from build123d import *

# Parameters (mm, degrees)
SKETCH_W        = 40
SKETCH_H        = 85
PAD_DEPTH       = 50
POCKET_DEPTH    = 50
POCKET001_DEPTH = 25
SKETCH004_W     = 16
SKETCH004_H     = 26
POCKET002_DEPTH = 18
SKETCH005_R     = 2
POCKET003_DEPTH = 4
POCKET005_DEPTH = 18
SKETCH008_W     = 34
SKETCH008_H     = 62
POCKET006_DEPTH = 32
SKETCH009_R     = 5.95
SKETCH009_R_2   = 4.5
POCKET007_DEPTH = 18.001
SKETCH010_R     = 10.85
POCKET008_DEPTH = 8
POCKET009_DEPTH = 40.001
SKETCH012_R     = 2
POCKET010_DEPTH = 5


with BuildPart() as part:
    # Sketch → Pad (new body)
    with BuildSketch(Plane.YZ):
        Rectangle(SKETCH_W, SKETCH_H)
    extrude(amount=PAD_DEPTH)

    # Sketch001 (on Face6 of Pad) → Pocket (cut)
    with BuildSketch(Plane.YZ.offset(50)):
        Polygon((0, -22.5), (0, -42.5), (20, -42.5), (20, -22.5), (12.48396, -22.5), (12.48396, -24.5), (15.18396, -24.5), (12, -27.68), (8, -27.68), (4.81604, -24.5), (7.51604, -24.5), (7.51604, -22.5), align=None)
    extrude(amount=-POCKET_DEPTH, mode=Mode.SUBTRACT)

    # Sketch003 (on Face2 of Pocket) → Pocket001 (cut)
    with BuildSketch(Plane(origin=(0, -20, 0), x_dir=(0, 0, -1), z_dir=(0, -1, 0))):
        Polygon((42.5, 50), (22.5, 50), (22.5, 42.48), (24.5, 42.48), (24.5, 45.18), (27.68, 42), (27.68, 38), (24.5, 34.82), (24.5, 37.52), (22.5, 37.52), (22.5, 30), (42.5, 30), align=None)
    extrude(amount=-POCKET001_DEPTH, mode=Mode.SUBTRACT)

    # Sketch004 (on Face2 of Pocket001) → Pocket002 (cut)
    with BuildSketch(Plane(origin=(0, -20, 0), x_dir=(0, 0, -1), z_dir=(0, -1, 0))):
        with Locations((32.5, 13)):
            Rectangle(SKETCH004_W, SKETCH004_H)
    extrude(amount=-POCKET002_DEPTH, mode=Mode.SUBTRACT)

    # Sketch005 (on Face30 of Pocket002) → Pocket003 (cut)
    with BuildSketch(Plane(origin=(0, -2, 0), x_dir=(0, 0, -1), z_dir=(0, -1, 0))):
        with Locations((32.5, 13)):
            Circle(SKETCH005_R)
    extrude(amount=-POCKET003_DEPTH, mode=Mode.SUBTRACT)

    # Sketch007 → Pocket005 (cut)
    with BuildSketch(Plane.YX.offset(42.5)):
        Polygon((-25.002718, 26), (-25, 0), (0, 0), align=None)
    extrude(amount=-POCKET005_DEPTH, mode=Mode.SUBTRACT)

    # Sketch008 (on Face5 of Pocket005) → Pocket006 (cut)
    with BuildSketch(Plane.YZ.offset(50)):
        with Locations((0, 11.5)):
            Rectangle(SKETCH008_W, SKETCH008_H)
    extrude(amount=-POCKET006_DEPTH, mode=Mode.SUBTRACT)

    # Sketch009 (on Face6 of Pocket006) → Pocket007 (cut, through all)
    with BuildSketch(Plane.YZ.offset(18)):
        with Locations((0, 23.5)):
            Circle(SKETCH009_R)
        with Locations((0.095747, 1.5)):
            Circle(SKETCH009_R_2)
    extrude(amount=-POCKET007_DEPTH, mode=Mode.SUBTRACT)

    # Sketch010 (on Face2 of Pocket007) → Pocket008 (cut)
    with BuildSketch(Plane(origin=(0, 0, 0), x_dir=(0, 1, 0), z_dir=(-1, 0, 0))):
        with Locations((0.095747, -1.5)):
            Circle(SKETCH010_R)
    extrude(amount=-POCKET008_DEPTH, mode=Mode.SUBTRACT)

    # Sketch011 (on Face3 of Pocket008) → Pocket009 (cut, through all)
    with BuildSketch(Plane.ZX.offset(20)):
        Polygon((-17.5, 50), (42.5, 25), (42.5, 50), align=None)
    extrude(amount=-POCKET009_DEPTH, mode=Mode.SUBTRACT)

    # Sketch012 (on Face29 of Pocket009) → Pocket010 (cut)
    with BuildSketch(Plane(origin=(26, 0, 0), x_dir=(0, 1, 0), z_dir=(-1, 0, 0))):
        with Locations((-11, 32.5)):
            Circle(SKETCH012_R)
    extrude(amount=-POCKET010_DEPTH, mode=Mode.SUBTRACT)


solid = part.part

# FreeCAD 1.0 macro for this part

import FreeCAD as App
import Part
import Sketcher
from FreeCAD import Vector
Q = App.Units.Quantity

doc = App.newDocument("Part")
body = doc.addObject("PartDesign::Body", "Body")

# Sketch on YZ plane
sketch1 = body.newObject("Sketcher::SketchObject", "Sketch")
sketch1.AttachmentSupport = (doc.getObject("YZ_Plane"), [""])
sketch1.MapMode = "FlatFace"
sketch1.addGeometry([
    Part.LineSegment(Vector(-20, 42, 0), Vector(-20, -42, 0)),
    Part.LineSegment(Vector(-20, -42, 0), Vector(20, -42, 0)),
    Part.LineSegment(Vector(20, -42, 0), Vector(20, 42, 0)),
    Part.LineSegment(Vector(20, 42, 0), Vector(-20, 42, 0)),
], False)
sketch1.addConstraint([
    Sketcher.Constraint("Coincident", 0, 2, 1, 1),
    Sketcher.Constraint("Coincident", 1, 2, 2, 1),
    Sketcher.Constraint("Coincident", 2, 2, 3, 1),
    Sketcher.Constraint("Coincident", 3, 2, 0, 1),
    Sketcher.Constraint("Vertical", 0),
    Sketcher.Constraint("Horizontal", 1),
    Sketcher.Constraint("Vertical", 2),
    Sketcher.Constraint("Horizontal", 3),
    Sketcher.Constraint("Symmetric", 0, 2, 2, 2, -1, 1),
    Sketcher.Constraint("DistanceX", 1, 1, 1, 2, Q("40 mm")),
    Sketcher.Constraint("DistanceY", 0, 2, 0, 1, Q("85 mm")),
])
pad1 = body.newObject("PartDesign::Pad", "Pad")
pad1.Profile = sketch1
pad1.Length = 50

# Sketch on YZ plane
sketch2 = body.newObject("Sketcher::SketchObject", "Sketch001")
sketch2.AttachmentSupport = (doc.getObject("YZ_Plane"), [""])
sketch2.MapMode = "FlatFace"
sketch2.AttachmentOffset = App.Placement(Vector(0, 0, 50), App.Rotation())
sketch2.addGeometry([
    Part.LineSegment(Vector(0, -22.5, 0), Vector(0, -42.5, 0)),  # 0
    Part.LineSegment(Vector(0, -42.5, 0), Vector(20, -42.5, 0)),  # 1
    Part.LineSegment(Vector(20, -42.5, 0), Vector(20, -22.5, 0)),  # 2
    Part.LineSegment(Vector(20, -22.5, 0), Vector(12.5, -22.5, 0)),  # 3
    Part.LineSegment(Vector(12.5, -22.5, 0), Vector(12.5, -24.5, 0)),  # 4
    Part.LineSegment(Vector(12.5, -24.5, 0), Vector(15.2, -24.5, 0)),  # 5
    Part.LineSegment(Vector(15.2, -24.5, 0), Vector(12, -27.7, 0)),  # 6
    Part.LineSegment(Vector(12, -27.7, 0), Vector(8, -27.7, 0)),  # 7
    Part.LineSegment(Vector(8, -27.7, 0), Vector(4.8, -24.5, 0)),  # 8
    Part.LineSegment(Vector(4.8, -24.5, 0), Vector(7.5, -24.5, 0)),  # 9
    Part.LineSegment(Vector(7.5, -24.5, 0), Vector(7.5, -22.5, 0)),  # 10
    Part.LineSegment(Vector(7.5, -22.5, 0), Vector(0, -22.5, 0)),  # 11
], False)
sketch2.addConstraint([
    Sketcher.Constraint("Coincident", 0, 2, 1, 1),
    Sketcher.Constraint("Coincident", 1, 2, 2, 1),
    Sketcher.Constraint("Coincident", 2, 2, 3, 1),
    Sketcher.Constraint("Coincident", 3, 2, 4, 1),
    Sketcher.Constraint("Coincident", 4, 2, 5, 1),
    Sketcher.Constraint("Coincident", 5, 2, 6, 1),
    Sketcher.Constraint("Coincident", 6, 2, 7, 1),
    Sketcher.Constraint("Coincident", 7, 2, 8, 1),
    Sketcher.Constraint("Coincident", 8, 2, 9, 1),
    Sketcher.Constraint("Coincident", 9, 2, 10, 1),
    Sketcher.Constraint("Coincident", 10, 2, 11, 1),
    Sketcher.Constraint("Coincident", 11, 2, 0, 1),
    Sketcher.Constraint("Vertical", 0),
    Sketcher.Constraint("Horizontal", 1),
    Sketcher.Constraint("Vertical", 2),
    Sketcher.Constraint("Horizontal", 3),
    Sketcher.Constraint("Vertical", 4),
    Sketcher.Constraint("Horizontal", 5),
    Sketcher.Constraint("Horizontal", 7),
    Sketcher.Constraint("Horizontal", 9),
    Sketcher.Constraint("Vertical", 10),
    Sketcher.Constraint("Horizontal", 11),
    Sketcher.Constraint("PointOnObject", 0, 2, -2),
    Sketcher.Constraint("Horizontal", 5, 2, 8, 2),
    Sketcher.Constraint("Horizontal", 3, 2, 10, 2),
    Sketcher.Constraint("Equal", 5, 9),
    Sketcher.Constraint("Equal", 3, 11),
    Sketcher.Constraint("Equal", 1, 0),
    Sketcher.Constraint("Equal", 6, 8),
    Sketcher.Constraint("DistanceX", 1, 1, 1, 2, Q("20 mm")),
    Sketcher.Constraint("DistanceX", 7, 2, 7, 1, Q("4 mm")),
    Sketcher.Constraint("DistanceY", 4, 2, 4, 1, Q("2 mm")),
    Sketcher.Constraint("DistanceX", 5, 1, 5, 2, Q("2.7 mm")),
    Sketcher.Constraint("Distance", 6, Q("4.5 mm")),
    Sketcher.Constraint("DistanceY", 0, 2, -1, 1, Q("42.5 mm")),
    Sketcher.Constraint("DistanceY", 6, 2, -1, 1, Q("27.68 mm")),
])
pocket1 = body.newObject("PartDesign::Pocket", "Pocket")
pocket1.Profile = sketch2
pocket1.Length = 50

# Sketch on XZ plane
sketch3 = body.newObject("Sketcher::SketchObject", "Sketch002")
sketch3.AttachmentSupport = (doc.getObject("XZ_Plane"), [""])
sketch3.MapMode = "FlatFace"
sketch3.AttachmentOffset = App.Placement(Vector(0, 0, 20), App.Rotation())
sketch3.addGeometry([
    Part.LineSegment(Vector(50, -42.5, 0), Vector(50, -22.5, 0)),  # 0
    Part.LineSegment(Vector(50, -22.5, 0), Vector(42.5, -22.5, 0)),  # 1
    Part.LineSegment(Vector(42.5, -22.5, 0), Vector(42.5, -24.5, 0)),  # 2
    Part.LineSegment(Vector(42.5, -24.5, 0), Vector(45.2, -24.5, 0)),  # 3
    Part.LineSegment(Vector(45.2, -24.5, 0), Vector(42, -27.7, 0)),  # 4
    Part.LineSegment(Vector(42, -27.7, 0), Vector(38, -27.7, 0)),  # 5
    Part.LineSegment(Vector(38, -27.7, 0), Vector(34.8, -24.5, 0)),  # 6
    Part.LineSegment(Vector(34.8, -24.5, 0), Vector(37.5, -24.5, 0)),  # 7
    Part.LineSegment(Vector(37.5, -24.5, 0), Vector(37.5, -22.5, 0)),  # 8
    Part.LineSegment(Vector(37.5, -22.5, 0), Vector(30, -22.5, 0)),  # 9
    Part.LineSegment(Vector(30, -22.5, 0), Vector(30, -42.5, 0)),  # 10
    Part.LineSegment(Vector(30, -42.5, 0), Vector(50, -42.5, 0)),  # 11
], False)
sketch3.addConstraint([
    Sketcher.Constraint("Coincident", 0, 2, 1, 1),
    Sketcher.Constraint("Coincident", 1, 2, 2, 1),
    Sketcher.Constraint("Coincident", 2, 2, 3, 1),
    Sketcher.Constraint("Coincident", 3, 2, 4, 1),
    Sketcher.Constraint("Coincident", 4, 2, 5, 1),
    Sketcher.Constraint("Coincident", 5, 2, 6, 1),
    Sketcher.Constraint("Coincident", 6, 2, 7, 1),
    Sketcher.Constraint("Coincident", 7, 2, 8, 1),
    Sketcher.Constraint("Coincident", 8, 2, 9, 1),
    Sketcher.Constraint("Coincident", 9, 2, 10, 1),
    Sketcher.Constraint("Coincident", 10, 2, 11, 1),
    Sketcher.Constraint("Coincident", 11, 2, 0, 1),
    Sketcher.Constraint("Vertical", 0),
    Sketcher.Constraint("Horizontal", 1),
    Sketcher.Constraint("Vertical", 2),
    Sketcher.Constraint("Horizontal", 3),
    Sketcher.Constraint("Horizontal", 5),
    Sketcher.Constraint("Horizontal", 7),
    Sketcher.Constraint("Vertical", 8),
    Sketcher.Constraint("Horizontal", 9),
    Sketcher.Constraint("Vertical", 10),
    Sketcher.Constraint("Horizontal", 11),
    Sketcher.Constraint("Perpendicular", 4, 6),
    Sketcher.Constraint("Horizontal", 3, 2, 6, 2),
    Sketcher.Constraint("Horizontal", 1, 2, 8, 2),
    Sketcher.Constraint("Equal", 3, 7),
    Sketcher.Constraint("Equal", 1, 9),
    Sketcher.Constraint("Equal", 11, 0),
    Sketcher.Constraint("Equal", 4, 6),
    Sketcher.Constraint("DistanceX", 5, 2, 5, 1, Q("4 mm")),
    Sketcher.Constraint("DistanceX", 11, 1, 11, 2, Q("20 mm")),
    Sketcher.Constraint("DistanceY", 2, 2, 2, 1, Q("2 mm")),
    Sketcher.Constraint("DistanceX", 3, 1, 3, 2, Q("2.7 mm")),
    Sketcher.Constraint("DistanceX", -1, 1, 0, 2, Q("50 mm")),
    Sketcher.Constraint("DistanceX", 1, 2, 1, 1, Q("7.52 mm")),
    Sketcher.Constraint("DistanceY", 0, 2, -1, 1, Q("22.5 mm")),
])
pocket2 = body.newObject("PartDesign::Pocket", "Pocket001")
pocket2.Profile = sketch3
pocket2.Length = 25

# Sketch on XZ plane
sketch4 = body.newObject("Sketcher::SketchObject", "Sketch003")
sketch4.AttachmentSupport = (doc.getObject("XZ_Plane"), [""])
sketch4.MapMode = "FlatFace"
sketch4.AttachmentOffset = App.Placement(Vector(0, 0, 20), App.Rotation())
sketch4.addGeometry([
    Part.LineSegment(Vector(26, -24, 0), Vector(0, -24, 0)),
    Part.LineSegment(Vector(0, -24, 0), Vector(0, -40, 0)),
    Part.LineSegment(Vector(0, -40, 0), Vector(26, -40, 0)),
    Part.LineSegment(Vector(26, -40, 0), Vector(26, -24, 0)),
], False)
sketch4.addConstraint([
    Sketcher.Constraint("Coincident", 0, 2, 1, 1),
    Sketcher.Constraint("Coincident", 1, 2, 2, 1),
    Sketcher.Constraint("Coincident", 2, 2, 3, 1),
    Sketcher.Constraint("Coincident", 3, 2, 0, 1),
    Sketcher.Constraint("Horizontal", 0),
    Sketcher.Constraint("Vertical", 1),
    Sketcher.Constraint("Horizontal", 2),
    Sketcher.Constraint("Vertical", 3),
    Sketcher.Constraint("PointOnObject", 0, 2, -2),
    Sketcher.Constraint("DistanceX", 0, 2, 0, 1, Q("26 mm")),
    Sketcher.Constraint("DistanceY", 1, 2, 1, 1, Q("16 mm")),
    Sketcher.Constraint("DistanceY", 0, 2, -1, 1, Q("24.5 mm")),
])
pocket3 = body.newObject("PartDesign::Pocket", "Pocket002")
pocket3.Profile = sketch4
pocket3.Length = 18

# Sketch on XZ plane
sketch5 = body.newObject("Sketcher::SketchObject", "Sketch004")
sketch5.AttachmentSupport = (doc.getObject("XZ_Plane"), [""])
sketch5.MapMode = "FlatFace"
sketch5.AttachmentOffset = App.Placement(Vector(0, 0, 2), App.Rotation())
sketch5.addGeometry(Part.Circle(Vector(13, -32.5, 0), Vector(0, 0, 1), 2), False)
sketch5.addConstraint([
    Sketcher.Constraint("Diameter", 0, Q("4 mm")),
    Sketcher.Constraint("DistanceX", -1, 1, 0, 3, Q("13 mm")),
    Sketcher.Constraint("DistanceY", 0, 3, -1, 1, Q("32.5 mm")),
])
pocket4 = body.newObject("PartDesign::Pocket", "Pocket003")
pocket4.Profile = sketch5
pocket4.Length = 4

# Sketch on XY plane
sketch6 = body.newObject("Sketcher::SketchObject", "Sketch005")
sketch6.AttachmentSupport = (doc.getObject("XY_Plane"), [""])
sketch6.MapMode = "FlatFace"
sketch6.AttachmentOffset = App.Placement(Vector(0, 0, -42.5), App.Rotation())
sketch6.addGeometry([
    Part.LineSegment(Vector(26, -25, 0), Vector(0, -25, 0)),
    Part.LineSegment(Vector(0, -25, 0), Vector(0, 0, 0)),
    Part.LineSegment(Vector(0, 0, 0), Vector(26, -25, 0)),
], False)
sketch6.addConstraint([
    Sketcher.Constraint("Coincident", 0, 2, 1, 1),
    Sketcher.Constraint("Coincident", 1, 2, 2, 1),
    Sketcher.Constraint("Coincident", 2, 2, 0, 1),
    Sketcher.Constraint("Vertical", 1),
    Sketcher.Constraint("Coincident", 1, 2, -1, 1),
    Sketcher.Constraint("DistanceY", 1, 1, 1, 2, Q("25 mm")),
    Sketcher.Constraint("Distance", 0, Q("26 mm")),
    Sketcher.Constraint("Distance", 2, Q("36.071262 mm")),
])
pocket5 = body.newObject("PartDesign::Pocket", "Pocket004")
pocket5.Profile = sketch6
pocket5.Length = 18
pocket5.Reversed = True

# Sketch on YZ plane
sketch7 = body.newObject("Sketcher::SketchObject", "Sketch006")
sketch7.AttachmentSupport = (doc.getObject("YZ_Plane"), [""])
sketch7.MapMode = "FlatFace"
sketch7.AttachmentOffset = App.Placement(Vector(0, 0, 50), App.Rotation())
sketch7.addGeometry([
    Part.LineSegment(Vector(-17, 42, 0), Vector(-17, -20, 0)),
    Part.LineSegment(Vector(-17, -20, 0), Vector(17, -20, 0)),
    Part.LineSegment(Vector(17, -20, 0), Vector(17, 42, 0)),
    Part.LineSegment(Vector(17, 42, 0), Vector(-17, 42, 0)),
], False)
sketch7.addConstraint([
    Sketcher.Constraint("Coincident", 0, 2, 1, 1),
    Sketcher.Constraint("Coincident", 1, 2, 2, 1),
    Sketcher.Constraint("Coincident", 2, 2, 3, 1),
    Sketcher.Constraint("Coincident", 3, 2, 0, 1),
    Sketcher.Constraint("Vertical", 0),
    Sketcher.Constraint("Horizontal", 1),
    Sketcher.Constraint("Vertical", 2),
    Sketcher.Constraint("Horizontal", 3),
    Sketcher.Constraint("DistanceX", 1, 1, 1, 2, Q("34 mm")),
    Sketcher.Constraint("DistanceY", 0, 2, 0, 1, Q("62 mm")),
    Sketcher.Constraint("DistanceX", 0, 2, -1, 1, Q("17 mm")),
    Sketcher.Constraint("DistanceY", 0, 2, -1, 1, Q("19.5 mm")),
])
pocket6 = body.newObject("PartDesign::Pocket", "Pocket005")
pocket6.Profile = sketch7
pocket6.Length = 32

# Sketch on YZ plane
sketch8 = body.newObject("Sketcher::SketchObject", "Sketch007")
sketch8.AttachmentSupport = (doc.getObject("YZ_Plane"), [""])
sketch8.MapMode = "FlatFace"
sketch8.AttachmentOffset = App.Placement(Vector(0, 0, 18), App.Rotation())
sketch8.addGeometry([
    Part.Circle(Vector(0, 23.5, 0), Vector(0, 0, 1), 6),
    Part.Circle(Vector(0.1, 1.5, 0), Vector(0, 0, 1), 4.5),
], False)
sketch8.addConstraint([
    Sketcher.Constraint("PointOnObject", 0, 3, -2),
    Sketcher.Constraint("Diameter", 1, Q("9 mm")),
    Sketcher.Constraint("Diameter", 0, Q("11.9 mm")),
    Sketcher.Constraint("DistanceY", 1, 3, 0, 3, Q("22 mm")),
    Sketcher.Constraint("DistanceY", -1, 1, 0, 3, Q("23.5 mm")),
    Sketcher.Constraint("DistanceX", -1, 1, 1, 3, Q("0.095747 mm")),
])
pocket7 = body.newObject("PartDesign::Pocket", "Pocket006")
pocket7.Profile = sketch8
pocket7.Type = "ThroughAll"

# Sketch on YZ plane
sketch9 = body.newObject("Sketcher::SketchObject", "Sketch008")
sketch9.AttachmentSupport = (doc.getObject("YZ_Plane"), [""])
sketch9.MapMode = "FlatFace"
sketch9.addGeometry(Part.Circle(Vector(0, 2, 0), Vector(0, 0, 1), 11), False)
sketch9.addConstraint([
    Sketcher.Constraint("Diameter", 0, Q("21.7 mm")),
    Sketcher.Constraint("DistanceY", -1, 1, 0, 3, Q("1.5 mm")),
    Sketcher.Constraint("DistanceX", -1, 1, 0, 3, Q("0.095747 mm")),
])
pocket8 = body.newObject("PartDesign::Pocket", "Pocket007")
pocket8.Profile = sketch9
pocket8.Length = 8
pocket8.Reversed = True

# Sketch on XZ plane
sketch10 = body.newObject("Sketcher::SketchObject", "Sketch009")
sketch10.AttachmentSupport = (doc.getObject("XZ_Plane"), [""])
sketch10.MapMode = "FlatFace"
sketch10.AttachmentOffset = App.Placement(Vector(0, 0, -20), App.Rotation())
sketch10.addGeometry([
    Part.LineSegment(Vector(50, -18, 0), Vector(25, 42, 0)),
    Part.LineSegment(Vector(25, 42, 0), Vector(50, 42, 0)),
    Part.LineSegment(Vector(50, 42, 0), Vector(50, -18, 0)),
], False)
sketch10.addConstraint([
    Sketcher.Constraint("Coincident", 0, 2, 1, 1),
    Sketcher.Constraint("Coincident", 1, 2, 2, 1),
    Sketcher.Constraint("Coincident", 2, 2, 0, 1),
    Sketcher.Constraint("Horizontal", 1),
    Sketcher.Constraint("Vertical", 2),
    Sketcher.Constraint("DistanceX", 1, 1, 1, 2, Q("25 mm")),
    Sketcher.Constraint("DistanceY", 2, 2, 2, 1, Q("60 mm")),
    Sketcher.Constraint("DistanceX", -1, 1, 0, 2, Q("25 mm")),
    Sketcher.Constraint("DistanceY", -1, 1, 0, 2, Q("42.5 mm")),
])
pocket9 = body.newObject("PartDesign::Pocket", "Pocket008")
pocket9.Profile = sketch10
pocket9.Type = "ThroughAll"
pocket9.Reversed = True

# Sketch on YZ plane
sketch11 = body.newObject("Sketcher::SketchObject", "Sketch010")
sketch11.AttachmentSupport = (doc.getObject("YZ_Plane"), [""])
sketch11.MapMode = "FlatFace"
sketch11.AttachmentOffset = App.Placement(Vector(0, 0, 26), App.Rotation())
sketch11.addGeometry(Part.Circle(Vector(-11, -32.5, 0), Vector(0, 0, 1), 2), False)
sketch11.addConstraint([
    Sketcher.Constraint("Diameter", 0, Q("4 mm")),
    Sketcher.Constraint("DistanceX", 0, 3, -1, 1, Q("11 mm")),
    Sketcher.Constraint("DistanceY", 0, 3, -1, 1, Q("32.5 mm")),
])
pocket10 = body.newObject("PartDesign::Pocket", "Pocket009")
pocket10.Profile = sketch11
pocket10.Length = 5
pocket10.Reversed = True

doc.recompute()
